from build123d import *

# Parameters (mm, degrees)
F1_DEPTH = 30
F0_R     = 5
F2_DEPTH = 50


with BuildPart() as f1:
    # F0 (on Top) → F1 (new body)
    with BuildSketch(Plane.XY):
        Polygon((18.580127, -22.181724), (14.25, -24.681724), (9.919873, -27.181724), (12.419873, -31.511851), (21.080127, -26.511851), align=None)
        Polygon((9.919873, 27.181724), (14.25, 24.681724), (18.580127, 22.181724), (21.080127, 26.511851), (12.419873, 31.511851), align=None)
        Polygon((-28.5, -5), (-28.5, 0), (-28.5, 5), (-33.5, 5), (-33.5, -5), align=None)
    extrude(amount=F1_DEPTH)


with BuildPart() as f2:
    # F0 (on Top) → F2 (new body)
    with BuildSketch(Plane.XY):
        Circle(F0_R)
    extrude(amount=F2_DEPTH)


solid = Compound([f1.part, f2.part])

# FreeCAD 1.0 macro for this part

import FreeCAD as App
import Part
import Sketcher
Q = App.Units.Quantity

doc = App.newDocument("Part")
body = doc.addObject("PartDesign::Body", "Body")
body.AllowCompound = True

# Sketch on XY plane
sketch1 = body.newObject("Sketcher::SketchObject", "Sketch")
sketch1.AttachmentSupport = (doc.getObject("XY_Plane"), [""])
sketch1.MapMode = "FlatFace"
sketch1.addGeometry(Part.LineSegment(App.Vector(18.580127, -22.181724, 0), App.Vector(9.919873, -27.181724, 0)), False)
sketch1.addGeometry(Part.LineSegment(App.Vector(9.919873, -27.181724, 0), App.Vector(12.419873, -31.511851, 0)), False)
sketch1.addGeometry(Part.LineSegment(App.Vector(12.419873, -31.511851, 0), App.Vector(21.080127, -26.511851, 0)), False)
sketch1.addGeometry(Part.LineSegment(App.Vector(21.080127, -26.511851, 0), App.Vector(18.580127, -22.181724, 0)), False)
sketch1.addGeometry(Part.LineSegment(App.Vector(9.919873, 27.181724, 0), App.Vector(18.580127, 22.181724, 0)), False)
sketch1.addGeometry(Part.LineSegment(App.Vector(18.580127, 22.181724, 0), App.Vector(21.080127, 26.511851, 0)), False)
sketch1.addGeometry(Part.LineSegment(App.Vector(21.080127, 26.511851, 0), App.Vector(12.419873, 31.511851, 0)), False)
sketch1.addGeometry(Part.LineSegment(App.Vector(12.419873, 31.511851, 0), App.Vector(9.919873, 27.181724, 0)), False)
sketch1.addGeometry(Part.LineSegment(App.Vector(-28.5, -5, 0), App.Vector(-28.5, 5, 0)), False)
sketch1.addGeometry(Part.LineSegment(App.Vector(-28.5, 5, 0), App.Vector(-33.5, 5, 0)), False)
sketch1.addGeometry(Part.LineSegment(App.Vector(-33.5, 5, 0), App.Vector(-33.5, -5, 0)), False)
sketch1.addGeometry(Part.LineSegment(App.Vector(-33.5, -5, 0), App.Vector(-28.5, -5, 0)), False)
sketch1.addConstraint(Sketcher.Constraint("Coincident", 0, 2, 1, 1))
sketch1.addConstraint(Sketcher.Constraint("Coincident", 1, 2, 2, 1))
sketch1.addConstraint(Sketcher.Constraint("Coincident", 2, 2, 3, 1))
sketch1.addConstraint(Sketcher.Constraint("Coincident", 3, 2, 0, 1))
sketch1.addConstraint(Sketcher.Constraint("Coincident", 4, 2, 5, 1))
sketch1.addConstraint(Sketcher.Constraint("Coincident", 5, 2, 6, 1))
sketch1.addConstraint(Sketcher.Constraint("Coincident", 6, 2, 7, 1))
sketch1.addConstraint(Sketcher.Constraint("Coincident", 7, 2, 4, 1))
sketch1.addConstraint(Sketcher.Constraint("Coincident", 8, 2, 9, 1))
sketch1.addConstraint(Sketcher.Constraint("Coincident", 9, 2, 10, 1))
sketch1.addConstraint(Sketcher.Constraint("Coincident", 10, 2, 11, 1))
sketch1.addConstraint(Sketcher.Constraint("Coincident", 11, 2, 8, 1))
sketch1.addConstraint(Sketcher.Constraint("Vertical", 8))
sketch1.addConstraint(Sketcher.Constraint("Horizontal", 9))
sketch1.addConstraint(Sketcher.Constraint("Vertical", 10))
sketch1.addConstraint(Sketcher.Constraint("Horizontal", 11))
sketch1.addConstraint(Sketcher.Constraint("Symmetric", 3, 2, 4, 2, -1))
sketch1.addConstraint(Sketcher.Constraint("Symmetric", 2, 2, 5, 2, -1))
sketch1.addConstraint(Sketcher.Constraint("Symmetric", 1, 2, 6, 2, -1))
sketch1.addConstraint(Sketcher.Constraint("Symmetric", 0, 2, 7, 2, -1))
sketch1.addConstraint(Sketcher.Constraint("Perpendicular", 0, 1))
sketch1.addConstraint(Sketcher.Constraint("Perpendicular", 1, 2))
sketch1.addConstraint(Sketcher.Constraint("Perpendicular", 2, 3))
sketch1.addConstraint(Sketcher.Constraint("DistanceX", 9, 2, 9, 1, 5.0))
sketch1.addConstraint(Sketcher.Constraint("DistanceY", 8, 1, 8, 2, 10.0))
sketch1.addConstraint(Sketcher.Constraint("Angle", 0, Q("-150 deg")))
sketch1.addConstraint(Sketcher.Constraint("Distance", 0, 10.0))
sketch1.addConstraint(Sketcher.Constraint("Distance", 1, 5.0))
sketch1.addConstraint(Sketcher.Constraint("DistanceY", -1, 1, 8, 2, 5.0))
sketch1.addConstraint(Sketcher.Constraint("DistanceX", 8, 2, -1, 1, 28.5))
sketch1.addConstraint(Sketcher.Constraint("DistanceY", 1, 2, -1, 1, 31.511851))
sketch1.addConstraint(Sketcher.Constraint("DistanceX", -1, 1, 0, 2, 9.919873))
pad1 = body.newObject("PartDesign::Pad", "Pad")
pad1.Profile = sketch1
pad1.Length = 30
body2 = doc.addObject("PartDesign::Body", "Body001")

# Sketch on XY plane
sketch2 = body2.newObject("Sketcher::SketchObject", "Sketch001")
sketch2.AttachmentSupport = (doc.getObject("XY_Plane001"), [""])
sketch2.MapMode = "FlatFace"
sketch2.addGeometry(Part.Circle(App.Vector(0, 0, 0), App.Vector(0, 0, 1), 5), False)
sketch2.addConstraint(Sketcher.Constraint("Coincident", 0, 3, -1, 1))
sketch2.addConstraint(Sketcher.Constraint("Diameter", 0, 10.0))
pad2 = body2.newObject("PartDesign::Pad", "Pad001")
pad2.Profile = sketch2
pad2.Length = 50

doc.recompute()
